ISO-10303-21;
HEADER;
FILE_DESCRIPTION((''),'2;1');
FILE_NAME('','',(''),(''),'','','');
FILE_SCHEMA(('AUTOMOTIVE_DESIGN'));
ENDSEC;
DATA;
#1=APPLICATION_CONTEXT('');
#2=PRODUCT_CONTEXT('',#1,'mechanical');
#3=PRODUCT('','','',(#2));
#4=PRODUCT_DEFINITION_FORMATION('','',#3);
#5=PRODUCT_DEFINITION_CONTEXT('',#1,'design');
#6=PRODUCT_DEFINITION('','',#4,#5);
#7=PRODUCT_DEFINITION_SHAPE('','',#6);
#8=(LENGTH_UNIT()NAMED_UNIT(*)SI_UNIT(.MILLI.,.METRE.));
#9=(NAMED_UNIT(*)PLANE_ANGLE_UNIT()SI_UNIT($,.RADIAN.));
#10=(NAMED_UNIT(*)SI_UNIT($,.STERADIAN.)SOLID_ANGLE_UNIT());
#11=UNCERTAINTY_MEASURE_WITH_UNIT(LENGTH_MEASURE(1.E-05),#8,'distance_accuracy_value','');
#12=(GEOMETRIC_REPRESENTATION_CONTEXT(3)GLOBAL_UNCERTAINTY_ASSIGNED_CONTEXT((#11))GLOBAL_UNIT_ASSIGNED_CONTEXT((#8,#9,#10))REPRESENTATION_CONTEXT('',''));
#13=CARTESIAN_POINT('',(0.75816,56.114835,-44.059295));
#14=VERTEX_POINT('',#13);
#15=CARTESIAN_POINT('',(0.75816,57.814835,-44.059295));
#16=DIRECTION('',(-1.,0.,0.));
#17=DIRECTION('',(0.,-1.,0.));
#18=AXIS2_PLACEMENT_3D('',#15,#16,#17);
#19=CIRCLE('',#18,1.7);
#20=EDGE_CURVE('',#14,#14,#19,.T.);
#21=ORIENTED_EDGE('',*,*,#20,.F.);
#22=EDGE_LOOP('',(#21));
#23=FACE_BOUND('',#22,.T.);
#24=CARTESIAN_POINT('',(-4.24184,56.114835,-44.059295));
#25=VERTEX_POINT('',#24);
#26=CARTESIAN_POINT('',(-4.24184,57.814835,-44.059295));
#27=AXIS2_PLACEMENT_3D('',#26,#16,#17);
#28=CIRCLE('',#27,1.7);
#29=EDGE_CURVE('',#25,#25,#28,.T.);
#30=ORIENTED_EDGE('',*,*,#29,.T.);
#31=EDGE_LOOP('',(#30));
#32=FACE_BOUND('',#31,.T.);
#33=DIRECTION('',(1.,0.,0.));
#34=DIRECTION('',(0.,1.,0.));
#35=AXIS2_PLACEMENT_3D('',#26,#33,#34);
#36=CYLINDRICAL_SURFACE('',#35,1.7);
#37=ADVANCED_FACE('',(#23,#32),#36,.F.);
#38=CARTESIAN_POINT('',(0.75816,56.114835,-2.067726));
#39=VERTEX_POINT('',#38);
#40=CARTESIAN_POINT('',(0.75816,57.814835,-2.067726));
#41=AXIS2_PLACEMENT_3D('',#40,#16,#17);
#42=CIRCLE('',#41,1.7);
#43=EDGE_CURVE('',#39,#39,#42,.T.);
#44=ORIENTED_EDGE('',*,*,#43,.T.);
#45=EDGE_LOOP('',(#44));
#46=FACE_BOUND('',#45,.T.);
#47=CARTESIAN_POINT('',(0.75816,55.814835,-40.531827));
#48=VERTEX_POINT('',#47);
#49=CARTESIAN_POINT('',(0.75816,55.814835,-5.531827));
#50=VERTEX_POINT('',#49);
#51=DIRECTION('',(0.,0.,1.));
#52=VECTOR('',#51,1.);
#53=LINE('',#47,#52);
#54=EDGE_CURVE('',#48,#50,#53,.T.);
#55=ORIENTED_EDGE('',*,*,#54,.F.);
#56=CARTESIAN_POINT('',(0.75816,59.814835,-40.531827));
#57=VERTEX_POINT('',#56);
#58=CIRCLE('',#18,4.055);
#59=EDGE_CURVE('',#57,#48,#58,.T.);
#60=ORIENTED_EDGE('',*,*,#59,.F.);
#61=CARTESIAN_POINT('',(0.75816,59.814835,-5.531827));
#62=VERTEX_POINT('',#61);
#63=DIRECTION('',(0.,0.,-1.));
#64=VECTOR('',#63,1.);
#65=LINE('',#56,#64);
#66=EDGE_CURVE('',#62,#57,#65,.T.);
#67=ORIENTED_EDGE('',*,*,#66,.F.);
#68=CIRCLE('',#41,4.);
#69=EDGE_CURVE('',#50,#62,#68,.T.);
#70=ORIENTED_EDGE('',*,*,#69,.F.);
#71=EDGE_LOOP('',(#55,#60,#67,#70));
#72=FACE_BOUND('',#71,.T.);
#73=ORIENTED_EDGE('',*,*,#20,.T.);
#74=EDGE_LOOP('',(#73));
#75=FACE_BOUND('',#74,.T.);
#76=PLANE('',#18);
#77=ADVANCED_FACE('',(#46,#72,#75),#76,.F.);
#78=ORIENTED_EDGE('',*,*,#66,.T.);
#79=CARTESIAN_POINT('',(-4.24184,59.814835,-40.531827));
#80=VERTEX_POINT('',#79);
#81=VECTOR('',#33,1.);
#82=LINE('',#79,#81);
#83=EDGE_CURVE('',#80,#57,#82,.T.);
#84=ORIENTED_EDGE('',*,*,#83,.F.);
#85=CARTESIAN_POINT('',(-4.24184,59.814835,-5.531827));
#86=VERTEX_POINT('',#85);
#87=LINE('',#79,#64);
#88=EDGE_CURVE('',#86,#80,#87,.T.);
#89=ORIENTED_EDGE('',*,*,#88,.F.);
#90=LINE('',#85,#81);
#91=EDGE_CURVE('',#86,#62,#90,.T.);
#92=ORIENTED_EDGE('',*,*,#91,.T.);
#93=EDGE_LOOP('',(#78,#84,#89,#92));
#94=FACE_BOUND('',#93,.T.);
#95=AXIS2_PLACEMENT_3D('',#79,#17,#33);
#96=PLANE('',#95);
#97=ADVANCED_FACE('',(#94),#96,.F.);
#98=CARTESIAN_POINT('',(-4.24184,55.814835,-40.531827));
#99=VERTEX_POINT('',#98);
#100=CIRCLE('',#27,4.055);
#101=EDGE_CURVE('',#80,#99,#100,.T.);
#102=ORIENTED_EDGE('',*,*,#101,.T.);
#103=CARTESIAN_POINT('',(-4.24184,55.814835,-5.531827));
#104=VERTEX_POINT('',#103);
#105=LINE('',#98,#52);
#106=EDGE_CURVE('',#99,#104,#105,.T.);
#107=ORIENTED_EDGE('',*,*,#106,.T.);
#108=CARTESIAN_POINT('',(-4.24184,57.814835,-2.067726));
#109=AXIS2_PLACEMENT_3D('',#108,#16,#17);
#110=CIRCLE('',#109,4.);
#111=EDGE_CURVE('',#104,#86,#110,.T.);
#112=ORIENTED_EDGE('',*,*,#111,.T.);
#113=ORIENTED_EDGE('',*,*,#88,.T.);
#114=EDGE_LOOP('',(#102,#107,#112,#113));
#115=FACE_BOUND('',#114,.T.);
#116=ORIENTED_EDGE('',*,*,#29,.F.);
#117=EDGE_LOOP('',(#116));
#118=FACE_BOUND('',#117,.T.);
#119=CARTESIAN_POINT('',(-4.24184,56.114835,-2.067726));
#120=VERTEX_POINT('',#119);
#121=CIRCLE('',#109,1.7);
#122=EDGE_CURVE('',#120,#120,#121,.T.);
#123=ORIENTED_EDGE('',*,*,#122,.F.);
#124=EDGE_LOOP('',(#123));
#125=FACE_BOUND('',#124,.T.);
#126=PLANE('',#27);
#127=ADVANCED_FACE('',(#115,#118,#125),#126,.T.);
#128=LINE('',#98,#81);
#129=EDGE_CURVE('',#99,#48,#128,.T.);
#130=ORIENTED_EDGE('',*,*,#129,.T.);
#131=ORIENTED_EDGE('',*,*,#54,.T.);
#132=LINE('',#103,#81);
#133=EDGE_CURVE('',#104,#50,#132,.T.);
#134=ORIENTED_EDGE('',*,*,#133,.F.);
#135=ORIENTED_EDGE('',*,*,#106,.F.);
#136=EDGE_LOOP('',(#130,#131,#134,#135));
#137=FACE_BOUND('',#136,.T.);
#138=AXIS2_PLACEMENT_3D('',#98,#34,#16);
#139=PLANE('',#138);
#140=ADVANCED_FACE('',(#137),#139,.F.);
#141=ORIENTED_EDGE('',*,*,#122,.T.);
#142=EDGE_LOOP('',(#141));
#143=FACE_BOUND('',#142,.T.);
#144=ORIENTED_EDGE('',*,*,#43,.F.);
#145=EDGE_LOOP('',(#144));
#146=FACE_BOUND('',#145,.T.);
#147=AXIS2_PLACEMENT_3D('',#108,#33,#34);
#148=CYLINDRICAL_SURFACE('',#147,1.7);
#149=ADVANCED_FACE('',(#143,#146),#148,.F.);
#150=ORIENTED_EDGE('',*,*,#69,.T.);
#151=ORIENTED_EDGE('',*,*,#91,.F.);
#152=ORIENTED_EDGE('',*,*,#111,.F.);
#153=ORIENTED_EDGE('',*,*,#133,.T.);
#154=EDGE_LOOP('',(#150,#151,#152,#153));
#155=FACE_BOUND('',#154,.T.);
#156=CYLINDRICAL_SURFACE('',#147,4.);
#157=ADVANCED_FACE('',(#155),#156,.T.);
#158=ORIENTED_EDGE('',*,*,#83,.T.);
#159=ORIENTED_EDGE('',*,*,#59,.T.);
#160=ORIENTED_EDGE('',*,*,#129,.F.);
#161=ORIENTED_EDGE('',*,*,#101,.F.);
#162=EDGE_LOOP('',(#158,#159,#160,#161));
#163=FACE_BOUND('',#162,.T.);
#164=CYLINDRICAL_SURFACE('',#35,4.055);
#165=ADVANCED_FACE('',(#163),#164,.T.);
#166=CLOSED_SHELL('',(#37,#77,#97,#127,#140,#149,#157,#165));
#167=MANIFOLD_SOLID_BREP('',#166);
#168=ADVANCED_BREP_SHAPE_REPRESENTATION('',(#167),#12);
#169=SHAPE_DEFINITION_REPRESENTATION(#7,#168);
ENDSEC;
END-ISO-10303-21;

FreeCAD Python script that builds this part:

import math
import FreeCAD as App
import Part
import Sketcher

V = App.Vector
Q = App.Units.Quantity

doc = App.newDocument("Part")
body = doc.addObject("PartDesign::Body", "Body")

sketch1 = doc.addObject("Sketcher::SketchObject", "Sketch")
body.addObject(sketch1)
sketch1.AttachmentSupport = (doc.YZ_Plane, [""])
sketch1.MapMode = "FlatFace"
sketch1.AttachmentOffset = App.Placement(V(0, 0, 0.75816), App.Rotation())
sketch1.addGeometry(Part.LineSegment(V(59.8, -5.5, 0), V(59.8, -40.5, 0)), False)
sketch1.addGeometry(Part.ArcOfCircle(Part.Circle(V(57.8, -44.1, 0), V(0, 0, 1), 4.1), math.radians(120), math.radians(420)), False)
sketch1.addGeometry(Part.LineSegment(V(55.8, -40.5, 0), V(55.8, -5.5, 0)), False)
sketch1.addGeometry(Part.ArcOfCircle(Part.Circle(V(57.8, -2.1, 0), V(0, 0, 1), 4), math.radians(-60), math.radians(240)), False)
sketch1.addGeometry(Part.Circle(V(57.8, -2.1, 0), V(0, 0, 1), 1.7), False)
sketch1.addGeometry(Part.Circle(V(57.8, -44.1, 0), V(0, 0, 1), 1.7), False)
sketch1.addConstraint(Sketcher.Constraint("Coincident", 0, 2, 1, 2))
sketch1.addConstraint(Sketcher.Constraint("Coincident", 1, 1, 2, 1))
sketch1.addConstraint(Sketcher.Constraint("Coincident", 2, 2, 3, 2))
sketch1.addConstraint(Sketcher.Constraint("Coincident", 3, 1, 0, 1))
sketch1.addConstraint(Sketcher.Constraint("Vertical", 0))
sketch1.addConstraint(Sketcher.Constraint("Vertical", 2))
sketch1.addConstraint(Sketcher.Constraint("Coincident", 4, 3, 3, 3))
sketch1.addConstraint(Sketcher.Constraint("Coincident", 5, 3, 1, 3))
sketch1.addConstraint(Sketcher.Constraint("Equal", 4, 5))
sketch1.addConstraint(Sketcher.Constraint("Horizontal", 0, 2, 1, 1))
sketch1.addConstraint(Sketcher.Constraint("Horizontal", 2, 2, 3, 1))
sketch1.addConstraint(Sketcher.Constraint("Radius", 3, Q("4 mm")))
sketch1.addConstraint(Sketcher.Constraint("Diameter", 4, Q("3.4 mm")))
sketch1.addConstraint(Sketcher.Constraint("DistanceY", 0, 2, 0, 1, Q("35 mm")))
sketch1.addConstraint(Sketcher.Constraint("Radius", 1, Q("4.055 mm")))
sketch1.addConstraint(Sketcher.Constraint("DistanceX", 1, 3, 0, 2, Q("2 mm")))
sketch1.addConstraint(Sketcher.Constraint("DistanceX", -1, 1, 1, 3, Q("57.814835 mm")))
sketch1.addConstraint(Sketcher.Constraint("DistanceY", 1, 3, -1, 1, Q("44.059295 mm")))
pad1 = doc.addObject("PartDesign::Pad", "Pad")
body.addObject(pad1)
pad1.Profile = sketch1
pad1.Length = 5
pad1.Reversed = True

doc.recompute()
